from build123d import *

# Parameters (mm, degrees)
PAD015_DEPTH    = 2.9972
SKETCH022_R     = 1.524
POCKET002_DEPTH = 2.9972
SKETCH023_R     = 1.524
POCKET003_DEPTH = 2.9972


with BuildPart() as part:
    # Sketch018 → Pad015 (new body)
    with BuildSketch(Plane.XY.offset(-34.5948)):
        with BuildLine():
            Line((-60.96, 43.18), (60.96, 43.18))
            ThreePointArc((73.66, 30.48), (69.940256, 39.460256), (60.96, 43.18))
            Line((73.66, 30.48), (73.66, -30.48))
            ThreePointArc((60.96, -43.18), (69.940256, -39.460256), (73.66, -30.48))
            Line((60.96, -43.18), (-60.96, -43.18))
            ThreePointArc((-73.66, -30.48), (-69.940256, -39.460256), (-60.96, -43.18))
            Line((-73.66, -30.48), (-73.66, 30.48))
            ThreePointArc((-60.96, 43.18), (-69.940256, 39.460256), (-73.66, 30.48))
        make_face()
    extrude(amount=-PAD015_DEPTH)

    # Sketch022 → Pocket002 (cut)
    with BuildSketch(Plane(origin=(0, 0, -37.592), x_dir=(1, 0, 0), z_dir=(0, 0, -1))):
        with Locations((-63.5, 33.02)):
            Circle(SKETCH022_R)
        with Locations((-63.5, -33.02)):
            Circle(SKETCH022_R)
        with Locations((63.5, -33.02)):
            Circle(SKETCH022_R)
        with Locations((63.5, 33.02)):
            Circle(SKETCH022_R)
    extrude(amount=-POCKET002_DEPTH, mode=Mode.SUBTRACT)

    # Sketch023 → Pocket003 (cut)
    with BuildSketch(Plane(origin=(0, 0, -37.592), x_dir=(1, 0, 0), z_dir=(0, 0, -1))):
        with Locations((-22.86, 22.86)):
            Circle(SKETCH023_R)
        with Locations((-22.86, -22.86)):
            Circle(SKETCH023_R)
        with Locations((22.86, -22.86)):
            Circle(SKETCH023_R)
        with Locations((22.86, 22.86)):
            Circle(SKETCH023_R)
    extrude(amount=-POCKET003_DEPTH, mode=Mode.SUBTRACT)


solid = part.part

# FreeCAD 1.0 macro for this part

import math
import FreeCAD as App
import Part
import Sketcher
Q = App.Units.Quantity

doc = App.newDocument("Part")
body = doc.addObject("PartDesign::Body", "Body")

sketch1 = body.newObject("Sketcher::SketchObject", "Sketch")
sketch1.AttachmentSupport = (doc.getObject("XY_Plane"), [""])
sketch1.MapMode = "FlatFace"
sketch1.AttachmentOffset = App.Placement(App.Vector(0, 0, -1.362 * 25.4), App.Rotation())
sketch1.addGeometry([
    Part.LineSegment(App.Vector(60.96, 43.18, 0), App.Vector(-60.96, 43.18, 0)),
    Part.ArcOfCircle(Part.Circle(App.Vector(-60.96, 30.48, 0), App.Vector(0, 0, 1), 12.7), math.radians(90.000002), math.radians(179.999998)),
    Part.LineSegment(App.Vector(-73.66, 30.48, 0), App.Vector(-73.66, -30.48, 0)),
    Part.ArcOfCircle(Part.Circle(App.Vector(-60.96, -30.48, 0), App.Vector(0, 0, 1), 12.7), math.radians(-179.999998), math.radians(-90.000002)),
    Part.LineSegment(App.Vector(-60.96, -43.18, 0), App.Vector(60.96, -43.18, 0)),
    Part.ArcOfCircle(Part.Circle(App.Vector(60.96, -30.48, 0), App.Vector(0, 0, 1), 12.7), math.radians(-89.999998), math.radians(-0.000002)),
    Part.LineSegment(App.Vector(73.66, -30.48, 0), App.Vector(73.66, 30.48, 0)),
    Part.ArcOfCircle(Part.Circle(App.Vector(60.96, 30.48, 0), App.Vector(0, 0, 1), 12.7), math.radians(0.000002), math.radians(89.999998)),
], False)
sketch1.addConstraint([
    Sketcher.Constraint("Tangent", 0, 2, 1, 1),
    Sketcher.Constraint("Tangent", 1, 2, 2, 1),
    Sketcher.Constraint("Tangent", 2, 2, 3, 1),
    Sketcher.Constraint("Tangent", 3, 2, 4, 1),
    Sketcher.Constraint("Tangent", 4, 2, 5, 1),
    Sketcher.Constraint("Tangent", 5, 2, 6, 1),
    Sketcher.Constraint("Tangent", 6, 2, 7, 1),
    Sketcher.Constraint("Tangent", 7, 2, 0, 1),
    Sketcher.Constraint("Horizontal", 0),
    Sketcher.Constraint("Vertical", 2),
    Sketcher.Constraint("Horizontal", 4),
    Sketcher.Constraint("Vertical", 6),
    Sketcher.Constraint("Equal", 1, 3),
    Sketcher.Constraint("Equal", 3, 5),
    Sketcher.Constraint("Equal", 5, 7),
    Sketcher.Constraint("Symmetric", 1, 3, 5, 3, -1, 1),
    Sketcher.Constraint("Radius", 1, Q("0.5 in")),
    Sketcher.Constraint("DistanceX", 0, 2, 0, 1, Q("4.8 in")),
    Sketcher.Constraint("DistanceY", 2, 2, 2, 1, Q("2.4 in")),
])
pad1 = body.newObject("PartDesign::Pad", "Pad")
pad1.Profile = sketch1
pad1.Length = Q("0.118 in")
pad1.Reversed = True

sketch2 = body.newObject("Sketcher::SketchObject", "Sketch001")
sketch2.AttachmentSupport = (doc.getObject("XY_Plane"), [""])
sketch2.MapMode = "FlatFace"
sketch2.AttachmentOffset = App.Placement(App.Vector(0, 0, -1.48 * 25.4), App.Rotation())
sketch2.addGeometry([
    Part.Circle(App.Vector(-63.5, -33.02, 0), App.Vector(0, 0, 1), 1.524),
    Part.Circle(App.Vector(-63.5, 33.02, 0), App.Vector(0, 0, 1), 1.524),
    Part.Circle(App.Vector(63.5, 33.02, 0), App.Vector(0, 0, 1), 1.524),
    Part.Circle(App.Vector(63.5, -33.02, 0), App.Vector(0, 0, 1), 1.524),
], False)
sketch2.addConstraint([
    Sketcher.Constraint("Equal", 0, 1),
    Sketcher.Constraint("Equal", 1, 2),
    Sketcher.Constraint("Equal", 2, 3),
    Sketcher.Constraint("Symmetric", 0, 3, 2, 3, -1, 1),
    Sketcher.Constraint("Symmetric", 1, 3, 3, 3, -1, 1),
    Sketcher.Constraint("Symmetric", 1, 3, 2, 3, -2),
    Sketcher.Constraint("Diameter", 0, Q("0.12 in")),
    Sketcher.Constraint("DistanceX", 1, 3, 2, 3, Q("5 in")),
    Sketcher.Constraint("DistanceY", 0, 3, -1, 1, Q("1.3 in")),
])
pocket1 = body.newObject("PartDesign::Pocket", "Pocket")
pocket1.Profile = sketch2
pocket1.Length = Q("0.118 in")
pocket1.Reversed = True

sketch3 = body.newObject("Sketcher::SketchObject", "Sketch002")
sketch3.AttachmentSupport = (doc.getObject("XY_Plane"), [""])
sketch3.MapMode = "FlatFace"
sketch3.AttachmentOffset = App.Placement(App.Vector(0, 0, -1.48 * 25.4), App.Rotation())
sketch3.addGeometry([
    Part.Circle(App.Vector(-22.86, -22.86, 0), App.Vector(0, 0, 1), 1.524),
    Part.Circle(App.Vector(-22.86, 22.86, 0), App.Vector(0, 0, 1), 1.524),
    Part.Circle(App.Vector(22.86, 22.86, 0), App.Vector(0, 0, 1), 1.524),
    Part.Circle(App.Vector(22.86, -22.86, 0), App.Vector(0, 0, 1), 1.524),
], False)
sketch3.addConstraint([
    Sketcher.Constraint("Equal", 0, 1),
    Sketcher.Constraint("Equal", 1, 2),
    Sketcher.Constraint("Equal", 2, 3),
    Sketcher.Constraint("Symmetric", 0, 3, 2, 3, -1, 1),
    Sketcher.Constraint("Symmetric", 1, 3, 3, 3, -1, 1),
    Sketcher.Constraint("Symmetric", 1, 3, 2, 3, -2),
    Sketcher.Constraint("Diameter", 0, Q("0.12 in")),
    Sketcher.Constraint("DistanceX", 0, 3, -1, 1, Q("0.9 in")),
    Sketcher.Constraint("DistanceY", 0, 3, -1, 1, Q("0.9 in")),
])
pocket2 = body.newObject("PartDesign::Pocket", "Pocket001")
pocket2.Profile = sketch3
pocket2.Length = Q("0.118 in")
pocket2.Reversed = True

doc.recompute()
